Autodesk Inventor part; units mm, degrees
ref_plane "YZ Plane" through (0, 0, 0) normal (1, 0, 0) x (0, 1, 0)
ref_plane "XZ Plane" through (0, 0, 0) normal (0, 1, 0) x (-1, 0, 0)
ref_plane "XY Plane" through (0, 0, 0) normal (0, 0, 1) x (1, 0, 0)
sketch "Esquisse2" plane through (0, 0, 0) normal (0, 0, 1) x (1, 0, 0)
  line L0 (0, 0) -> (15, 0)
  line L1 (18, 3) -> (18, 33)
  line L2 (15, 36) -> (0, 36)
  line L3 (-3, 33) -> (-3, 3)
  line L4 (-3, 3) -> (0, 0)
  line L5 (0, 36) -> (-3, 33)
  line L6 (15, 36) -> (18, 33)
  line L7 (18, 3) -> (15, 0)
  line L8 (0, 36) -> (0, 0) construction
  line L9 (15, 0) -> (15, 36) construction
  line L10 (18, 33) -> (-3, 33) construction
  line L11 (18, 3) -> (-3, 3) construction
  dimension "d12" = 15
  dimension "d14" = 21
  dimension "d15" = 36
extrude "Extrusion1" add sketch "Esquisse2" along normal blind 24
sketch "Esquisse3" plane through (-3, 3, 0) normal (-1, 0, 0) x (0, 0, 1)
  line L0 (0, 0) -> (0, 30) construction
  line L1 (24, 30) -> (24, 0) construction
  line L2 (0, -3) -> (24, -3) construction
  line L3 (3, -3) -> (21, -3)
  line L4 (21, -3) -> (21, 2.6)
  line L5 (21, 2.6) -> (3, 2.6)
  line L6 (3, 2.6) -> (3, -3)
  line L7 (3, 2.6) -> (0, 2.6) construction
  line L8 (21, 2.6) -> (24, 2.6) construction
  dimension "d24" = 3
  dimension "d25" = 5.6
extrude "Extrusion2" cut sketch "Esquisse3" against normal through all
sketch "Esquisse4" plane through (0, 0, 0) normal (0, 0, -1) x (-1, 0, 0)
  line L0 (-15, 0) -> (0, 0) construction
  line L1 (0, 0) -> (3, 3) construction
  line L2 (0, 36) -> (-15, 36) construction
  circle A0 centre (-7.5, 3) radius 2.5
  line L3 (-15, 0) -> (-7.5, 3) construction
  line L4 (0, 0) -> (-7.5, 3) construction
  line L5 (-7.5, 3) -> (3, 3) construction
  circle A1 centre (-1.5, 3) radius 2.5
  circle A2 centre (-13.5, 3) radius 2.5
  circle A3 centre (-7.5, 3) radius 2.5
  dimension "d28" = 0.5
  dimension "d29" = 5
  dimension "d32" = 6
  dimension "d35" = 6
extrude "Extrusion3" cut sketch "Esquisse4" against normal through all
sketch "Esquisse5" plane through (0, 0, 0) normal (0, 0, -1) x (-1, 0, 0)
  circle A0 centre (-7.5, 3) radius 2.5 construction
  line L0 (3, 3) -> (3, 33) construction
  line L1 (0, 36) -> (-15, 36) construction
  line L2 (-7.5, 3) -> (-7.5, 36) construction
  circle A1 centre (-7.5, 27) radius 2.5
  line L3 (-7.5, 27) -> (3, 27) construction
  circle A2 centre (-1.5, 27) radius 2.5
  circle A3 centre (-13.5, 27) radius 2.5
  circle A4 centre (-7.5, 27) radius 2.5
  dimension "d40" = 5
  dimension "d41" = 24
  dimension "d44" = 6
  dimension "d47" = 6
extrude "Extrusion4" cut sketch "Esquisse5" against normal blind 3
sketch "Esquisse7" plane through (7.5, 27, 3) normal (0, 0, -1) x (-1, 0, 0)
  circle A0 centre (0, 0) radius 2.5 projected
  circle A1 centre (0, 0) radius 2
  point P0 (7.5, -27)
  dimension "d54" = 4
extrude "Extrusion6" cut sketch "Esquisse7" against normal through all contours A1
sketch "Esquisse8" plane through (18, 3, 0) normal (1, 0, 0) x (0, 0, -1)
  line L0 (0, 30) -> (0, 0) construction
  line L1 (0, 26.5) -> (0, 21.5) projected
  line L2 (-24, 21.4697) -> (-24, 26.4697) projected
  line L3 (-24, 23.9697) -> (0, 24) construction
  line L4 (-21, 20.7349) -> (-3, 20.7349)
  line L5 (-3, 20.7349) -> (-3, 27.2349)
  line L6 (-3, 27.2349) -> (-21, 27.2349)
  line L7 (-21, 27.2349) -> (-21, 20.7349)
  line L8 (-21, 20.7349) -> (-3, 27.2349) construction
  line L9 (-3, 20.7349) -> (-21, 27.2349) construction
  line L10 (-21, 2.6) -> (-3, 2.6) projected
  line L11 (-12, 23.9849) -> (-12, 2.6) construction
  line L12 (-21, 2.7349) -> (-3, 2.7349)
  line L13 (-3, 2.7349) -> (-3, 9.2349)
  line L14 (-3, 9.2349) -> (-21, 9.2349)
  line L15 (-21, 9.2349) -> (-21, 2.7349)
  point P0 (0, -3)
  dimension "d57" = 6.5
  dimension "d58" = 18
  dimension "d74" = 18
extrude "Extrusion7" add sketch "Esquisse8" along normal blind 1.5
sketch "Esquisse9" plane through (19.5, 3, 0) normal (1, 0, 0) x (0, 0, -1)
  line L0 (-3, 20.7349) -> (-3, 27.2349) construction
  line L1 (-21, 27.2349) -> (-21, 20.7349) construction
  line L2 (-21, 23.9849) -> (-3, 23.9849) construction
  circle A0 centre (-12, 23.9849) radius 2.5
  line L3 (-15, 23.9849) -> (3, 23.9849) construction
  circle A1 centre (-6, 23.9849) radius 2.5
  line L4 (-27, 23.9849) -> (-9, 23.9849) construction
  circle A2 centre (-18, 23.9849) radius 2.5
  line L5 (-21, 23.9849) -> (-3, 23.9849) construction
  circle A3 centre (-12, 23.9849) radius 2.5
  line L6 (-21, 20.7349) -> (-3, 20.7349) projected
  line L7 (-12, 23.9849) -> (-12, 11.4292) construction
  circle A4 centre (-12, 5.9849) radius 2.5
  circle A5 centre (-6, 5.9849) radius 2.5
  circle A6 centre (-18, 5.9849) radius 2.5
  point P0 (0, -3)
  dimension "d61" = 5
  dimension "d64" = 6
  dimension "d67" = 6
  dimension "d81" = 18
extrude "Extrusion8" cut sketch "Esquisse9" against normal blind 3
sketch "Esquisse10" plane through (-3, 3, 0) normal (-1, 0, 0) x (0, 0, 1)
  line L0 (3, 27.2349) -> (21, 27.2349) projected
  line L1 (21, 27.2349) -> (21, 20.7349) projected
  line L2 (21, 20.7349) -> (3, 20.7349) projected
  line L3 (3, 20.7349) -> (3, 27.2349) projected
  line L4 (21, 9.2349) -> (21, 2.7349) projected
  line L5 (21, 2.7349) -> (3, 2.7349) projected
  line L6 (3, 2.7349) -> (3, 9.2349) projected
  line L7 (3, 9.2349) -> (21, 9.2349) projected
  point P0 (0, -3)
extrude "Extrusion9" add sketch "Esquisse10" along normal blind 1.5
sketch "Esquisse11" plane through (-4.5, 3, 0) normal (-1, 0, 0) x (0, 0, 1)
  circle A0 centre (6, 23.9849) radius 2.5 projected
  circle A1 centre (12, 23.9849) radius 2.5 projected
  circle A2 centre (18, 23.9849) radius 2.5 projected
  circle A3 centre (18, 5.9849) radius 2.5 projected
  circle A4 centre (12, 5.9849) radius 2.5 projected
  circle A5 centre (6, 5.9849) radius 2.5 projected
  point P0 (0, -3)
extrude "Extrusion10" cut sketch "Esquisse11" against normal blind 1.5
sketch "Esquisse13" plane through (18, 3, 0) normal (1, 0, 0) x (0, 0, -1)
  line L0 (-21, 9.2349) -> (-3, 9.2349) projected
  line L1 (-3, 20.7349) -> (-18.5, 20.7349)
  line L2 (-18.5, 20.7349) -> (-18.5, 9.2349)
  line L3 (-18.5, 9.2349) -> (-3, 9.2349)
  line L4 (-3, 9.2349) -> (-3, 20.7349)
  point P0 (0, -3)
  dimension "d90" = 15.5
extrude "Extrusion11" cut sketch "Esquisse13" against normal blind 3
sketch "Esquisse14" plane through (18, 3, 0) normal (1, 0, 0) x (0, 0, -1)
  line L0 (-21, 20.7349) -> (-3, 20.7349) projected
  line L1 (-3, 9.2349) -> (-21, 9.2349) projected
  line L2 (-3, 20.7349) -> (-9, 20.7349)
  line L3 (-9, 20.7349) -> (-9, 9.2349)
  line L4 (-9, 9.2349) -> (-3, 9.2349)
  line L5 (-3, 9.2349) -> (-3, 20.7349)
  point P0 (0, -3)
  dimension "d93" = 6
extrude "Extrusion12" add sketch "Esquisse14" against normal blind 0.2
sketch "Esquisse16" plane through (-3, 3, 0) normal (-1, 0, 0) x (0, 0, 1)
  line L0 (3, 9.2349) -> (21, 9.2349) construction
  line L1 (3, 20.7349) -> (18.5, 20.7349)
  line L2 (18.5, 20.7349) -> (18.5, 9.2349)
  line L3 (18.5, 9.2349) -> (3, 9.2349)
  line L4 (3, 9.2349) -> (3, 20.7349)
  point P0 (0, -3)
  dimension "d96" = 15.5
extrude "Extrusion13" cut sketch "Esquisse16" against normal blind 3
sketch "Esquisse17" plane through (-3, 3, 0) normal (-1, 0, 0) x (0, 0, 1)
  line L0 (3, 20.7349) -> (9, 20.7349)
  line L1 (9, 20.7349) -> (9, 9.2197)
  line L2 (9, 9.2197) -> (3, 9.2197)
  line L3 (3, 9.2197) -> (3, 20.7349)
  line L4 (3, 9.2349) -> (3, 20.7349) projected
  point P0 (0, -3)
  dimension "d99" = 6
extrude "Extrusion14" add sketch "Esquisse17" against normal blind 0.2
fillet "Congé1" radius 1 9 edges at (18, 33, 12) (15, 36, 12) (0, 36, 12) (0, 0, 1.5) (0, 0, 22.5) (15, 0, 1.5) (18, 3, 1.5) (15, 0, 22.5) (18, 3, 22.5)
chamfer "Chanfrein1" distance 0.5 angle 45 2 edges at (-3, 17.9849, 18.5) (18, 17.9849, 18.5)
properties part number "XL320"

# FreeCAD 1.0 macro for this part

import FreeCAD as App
import Part
import Sketcher


def edges_at(feature, points):
    """Names of the edges that pass closest to the given points."""
    edges = feature.Shape.Edges
    near = lambda p: min(range(len(edges)), key=lambda i: edges[i].distToShape(Part.Vertex(*p))[0])
    return sorted({f"Edge{near(p) + 1}" for p in points})


def add_polygon(sketch, points):
    """Adds a closed chain of lines whose ends are joined by coincident constraints."""
    first, n = sketch.GeometryCount, len(points)
    for a, b in zip(points, points[1:] + points[:1]):
        sketch.addGeometry(Part.LineSegment(App.Vector(*a, 0), App.Vector(*b, 0)), False)
    for i in range(n):
        sketch.addConstraint(Sketcher.Constraint("Coincident", first + i, 2, first + (i + 1) % n, 1))

doc = App.newDocument("Part")
body = doc.addObject("PartDesign::Body", "Body")

# Sketch on XY plane
sketch1 = body.newObject("Sketcher::SketchObject", "Sketch")
sketch1.AttachmentSupport = (doc.getObject("XY_Plane"), [""])
sketch1.MapMode = "FlatFace"
add_polygon(sketch1, [(-3, 3), (0, 0), (15, 0), (18, 3), (18, 33), (15, 36), (0, 36), (-3, 33)])  # lines 0-7
sketch1.addConstraint(Sketcher.Constraint("Horizontal", 1))
sketch1.addConstraint(Sketcher.Constraint("Vertical", 3))
sketch1.addConstraint(Sketcher.Constraint("Horizontal", 5))
sketch1.addConstraint(Sketcher.Constraint("Vertical", 7))
sketch1.addConstraint(Sketcher.Constraint("Coincident", 0, 2, -1, 1))
sketch1.addConstraint(Sketcher.Constraint("PointOnObject", 5, 2, -2))
sketch1.addConstraint(Sketcher.Constraint("Perpendicular", 0, 2))
sketch1.addConstraint(Sketcher.Constraint("Perpendicular", 2, 4))
sketch1.addConstraint(Sketcher.Constraint("Perpendicular", 4, 6))
sketch1.addConstraint(Sketcher.Constraint("Horizontal", 3, 2, 6, 2))
sketch1.addConstraint(Sketcher.Constraint("Horizontal", 2, 2, 7, 2))
sketch1.addConstraint(Sketcher.Constraint("Vertical", 1, 2, 4, 2))
sketch1.addConstraint(Sketcher.Constraint("DistanceX", 1, 1, 1, 2, 15.0))
sketch1.addConstraint(Sketcher.Constraint("DistanceY", -1, 1, 4, 2, 36.0))
sketch1.addConstraint(Sketcher.Constraint("DistanceX", 6, 2, 3, 2, 21.0))
pad1 = body.newObject("PartDesign::Pad", "Pad")
pad1.Profile = sketch1
pad1.Length = 24

# Sketch on YZ plane
sketch2 = body.newObject("Sketcher::SketchObject", "Sketch001")
sketch2.AttachmentSupport = (doc.getObject("YZ_Plane"), [""])
sketch2.MapMode = "FlatFace"
sketch2.AttachmentOffset = App.Placement(App.Vector(0, 0, -3), App.Rotation())
add_polygon(sketch2, [(6, 3), (0, 3), (0, 21), (6, 21)])  # lines 0-3
sketch2.addConstraint(Sketcher.Constraint("Horizontal", 0))
sketch2.addConstraint(Sketcher.Constraint("Vertical", 1))
sketch2.addConstraint(Sketcher.Constraint("Horizontal", 2))
sketch2.addConstraint(Sketcher.Constraint("Vertical", 3))
sketch2.addConstraint(Sketcher.Constraint("PointOnObject", 0, 2, -2))
sketch2.addConstraint(Sketcher.Constraint("DistanceX", 0, 2, 0, 1, 5.6))
sketch2.addConstraint(Sketcher.Constraint("DistanceY", -1, 1, 0, 2, 3.0))
sketch2.addConstraint(Sketcher.Constraint("DistanceY", 1, 1, 1, 2, 18.0))
pocket1 = body.newObject("PartDesign::Pocket", "Pocket")
pocket1.Profile = sketch2
pocket1.Type = "ThroughAll"
pocket1.Reversed = True

# Sketch on XY plane
sketch3 = body.newObject("Sketcher::SketchObject", "Sketch002")
sketch3.AttachmentSupport = (doc.getObject("XY_Plane"), [""])
sketch3.MapMode = "FlatFace"
sketch3.addGeometry(Part.Circle(App.Vector(7.5, 3, 0), App.Vector(0, 0, 1), 2.5), False)
sketch3.addGeometry(Part.Circle(App.Vector(1.5, 3, 0), App.Vector(0, 0, 1), 2.5), False)
sketch3.addGeometry(Part.Circle(App.Vector(13.5, 3, 0), App.Vector(0, 0, 1), 2.5), False)
sketch3.addConstraint(Sketcher.Constraint("Equal", 0, 1))
sketch3.addConstraint(Sketcher.Constraint("Equal", 1, 2))
sketch3.addConstraint(Sketcher.Constraint("Horizontal", 0, 3, 1, 3))
sketch3.addConstraint(Sketcher.Constraint("Horizontal", 1, 3, 2, 3))
sketch3.addConstraint(Sketcher.Constraint("Diameter", 0, 5.0))
sketch3.addConstraint(Sketcher.Constraint("DistanceX", 1, 3, 0, 3, 6.0))
sketch3.addConstraint(Sketcher.Constraint("DistanceX", 0, 3, 2, 3, 6.0))
sketch3.addConstraint(Sketcher.Constraint("DistanceY", -1, 1, 0, 3, 3.0))
sketch3.addConstraint(Sketcher.Constraint("DistanceX", -1, 1, 0, 3, 7.5))
pocket2 = body.newObject("PartDesign::Pocket", "Pocket001")
pocket2.Profile = sketch3
pocket2.Type = "ThroughAll"
pocket2.Reversed = True

# Sketch on XY plane
sketch4 = body.newObject("Sketcher::SketchObject", "Sketch003")
sketch4.AttachmentSupport = (doc.getObject("XY_Plane"), [""])
sketch4.MapMode = "FlatFace"
sketch4.addGeometry(Part.Circle(App.Vector(7.5, 27, 0), App.Vector(0, 0, 1), 2.5), False)
sketch4.addGeometry(Part.Circle(App.Vector(1.5, 27, 0), App.Vector(0, 0, 1), 2.5), False)
sketch4.addGeometry(Part.Circle(App.Vector(13.5, 27, 0), App.Vector(0, 0, 1), 2.5), False)
sketch4.addConstraint(Sketcher.Constraint("Equal", 0, 1))
sketch4.addConstraint(Sketcher.Constraint("Equal", 1, 2))
sketch4.addConstraint(Sketcher.Constraint("Horizontal", 0, 3, 1, 3))
sketch4.addConstraint(Sketcher.Constraint("Horizontal", 1, 3, 2, 3))
sketch4.addConstraint(Sketcher.Constraint("Diameter", 0, 5.0))
sketch4.addConstraint(Sketcher.Constraint("DistanceX", 1, 3, 0, 3, 6.0))
sketch4.addConstraint(Sketcher.Constraint("DistanceX", 0, 3, 2, 3, 6.0))
sketch4.addConstraint(Sketcher.Constraint("DistanceY", -1, 1, 0, 3, 27.0))
sketch4.addConstraint(Sketcher.Constraint("DistanceX", -1, 1, 0, 3, 7.5))
pocket3 = body.newObject("PartDesign::Pocket", "Pocket002")
pocket3.Profile = sketch4
pocket3.Length = 3
pocket3.Reversed = True

# Sketch on XY plane
sketch5 = body.newObject("Sketcher::SketchObject", "Sketch004")
sketch5.AttachmentSupport = (doc.getObject("XY_Plane"), [""])
sketch5.MapMode = "FlatFace"
sketch5.AttachmentOffset = App.Placement(App.Vector(0, 0, 3), App.Rotation())
sketch5.addGeometry(Part.Circle(App.Vector(7.5, 27, 0), App.Vector(0, 0, 1), 2), False)
sketch5.addConstraint(Sketcher.Constraint("Diameter", 0, 4.0))
sketch5.addConstraint(Sketcher.Constraint("DistanceY", -1, 1, 0, 3, 27.0))
sketch5.addConstraint(Sketcher.Constraint("DistanceX", -1, 1, 0, 3, 7.5))
pocket4 = body.newObject("PartDesign::Pocket", "Pocket003")
pocket4.Profile = sketch5
pocket4.Type = "ThroughAll"
pocket4.Reversed = True

# Sketch on YZ plane
sketch6 = body.newObject("Sketcher::SketchObject", "Sketch005")
sketch6.AttachmentSupport = (doc.getObject("YZ_Plane"), [""])
sketch6.MapMode = "FlatFace"
sketch6.AttachmentOffset = App.Placement(App.Vector(0, 0, 18), App.Rotation())
add_polygon(sketch6, [(30, 21), (24, 21), (24, 3), (30, 3)])  # lines 0-3
add_polygon(sketch6, [(12, 21), (6, 21), (6, 3), (12, 3)])  # lines 4-7
sketch6.addConstraint(Sketcher.Constraint("Horizontal", 0))
sketch6.addConstraint(Sketcher.Constraint("Vertical", 1))
sketch6.addConstraint(Sketcher.Constraint("Horizontal", 2))
sketch6.addConstraint(Sketcher.Constraint("Vertical", 3))
sketch6.addConstraint(Sketcher.Constraint("Horizontal", 4))
sketch6.addConstraint(Sketcher.Constraint("Vertical", 5))
sketch6.addConstraint(Sketcher.Constraint("Horizontal", 6))
sketch6.addConstraint(Sketcher.Constraint("Vertical", 7))
sketch6.addConstraint(Sketcher.Constraint("Horizontal", 3, 2, 4, 2))
sketch6.addConstraint(Sketcher.Constraint("Horizontal", 2, 2, 5, 2))
sketch6.addConstraint(Sketcher.Constraint("Equal", 2, 4))
sketch6.addConstraint(Sketcher.Constraint("DistanceY", 1, 2, 1, 1, 18.0))
sketch6.addConstraint(Sketcher.Constraint("DistanceX", 0, 2, 0, 1, 6.5))
sketch6.addConstraint(Sketcher.Constraint("DistanceX", 4, 2, 0, 2, 18.0))
sketch6.addConstraint(Sketcher.Constraint("DistanceY", -1, 1, 0, 2, 21.0))
sketch6.addConstraint(Sketcher.Constraint("DistanceX", -1, 1, 0, 2, 23.735))
pad2 = body.newObject("PartDesign::Pad", "Pad001")
pad2.Profile = sketch6
pad2.Length = 1.5

# Sketch on YZ plane
sketch7 = body.newObject("Sketcher::SketchObject", "Sketch006")
sketch7.AttachmentSupport = (doc.getObject("YZ_Plane"), [""])
sketch7.MapMode = "FlatFace"
sketch7.AttachmentOffset = App.Placement(App.Vector(0, 0, 19.5), App.Rotation())
sketch7.addGeometry(Part.Circle(App.Vector(27, 12, 0), App.Vector(0, 0, 1), 2.5), False)
sketch7.addGeometry(Part.Circle(App.Vector(27, 6, 0), App.Vector(0, 0, 1), 2.5), False)
sketch7.addGeometry(Part.Circle(App.Vector(27, 18, 0), App.Vector(0, 0, 1), 2.5), False)
sketch7.addGeometry(Part.Circle(App.Vector(9, 12, 0), App.Vector(0, 0, 1), 2.5), False)
sketch7.addGeometry(Part.Circle(App.Vector(9, 6, 0), App.Vector(0, 0, 1), 2.5), False)
sketch7.addGeometry(Part.Circle(App.Vector(9, 18, 0), App.Vector(0, 0, 1), 2.5), False)
sketch7.addConstraint(Sketcher.Constraint("Equal", 0, 1))
sketch7.addConstraint(Sketcher.Constraint("Equal", 1, 2))
sketch7.addConstraint(Sketcher.Constraint("Equal", 2, 3))
sketch7.addConstraint(Sketcher.Constraint("Equal", 3, 4))
sketch7.addConstraint(Sketcher.Constraint("Equal", 4, 5))
sketch7.addConstraint(Sketcher.Constraint("Horizontal", 0, 3, 3, 3))
sketch7.addConstraint(Sketcher.Constraint("Horizontal", 1, 3, 4, 3))
sketch7.addConstraint(Sketcher.Constraint("Horizontal", 2, 3, 5, 3))
sketch7.addConstraint(Sketcher.Constraint("Vertical", 0, 3, 1, 3))
sketch7.addConstraint(Sketcher.Constraint("Vertical", 1, 3, 2, 3))
sketch7.addConstraint(Sketcher.Constraint("Vertical", 3, 3, 4, 3))
sketch7.addConstraint(Sketcher.Constraint("Vertical", 4, 3, 5, 3))
sketch7.addConstraint(Sketcher.Constraint("Diameter", 0, 5.0))
sketch7.addConstraint(Sketcher.Constraint("DistanceY", -1, 1, 1, 3, 6.0))
sketch7.addConstraint(Sketcher.Constraint("DistanceY", -1, 1, 2, 3, 18.0))
sketch7.addConstraint(Sketcher.Constraint("DistanceY", 1, 3, 0, 3, 6.0))
sketch7.addConstraint(Sketcher.Constraint("DistanceX", 3, 3, 0, 3, 18.0))
sketch7.addConstraint(Sketcher.Constraint("DistanceX", -1, 1, 0, 3, 26.985))
pocket5 = body.newObject("PartDesign::Pocket", "Pocket004")
pocket5.Profile = sketch7
pocket5.Length = 3

# Sketch on YZ plane
sketch8 = body.newObject("Sketcher::SketchObject", "Sketch007")
sketch8.AttachmentSupport = (doc.getObject("YZ_Plane"), [""])
sketch8.MapMode = "FlatFace"
sketch8.AttachmentOffset = App.Placement(App.Vector(0, 0, -3), App.Rotation())
add_polygon(sketch8, [(30, 21), (30, 3), (24, 3), (24, 21)])  # lines 0-3
add_polygon(sketch8, [(6, 21), (12, 21), (12, 3), (6, 3)])  # lines 4-7
sketch8.addConstraint(Sketcher.Constraint("Vertical", 0))
sketch8.addConstraint(Sketcher.Constraint("Horizontal", 1))
sketch8.addConstraint(Sketcher.Constraint("Vertical", 2))
sketch8.addConstraint(Sketcher.Constraint("Horizontal", 3))
sketch8.addConstraint(Sketcher.Constraint("Horizontal", 4))
sketch8.addConstraint(Sketcher.Constraint("Vertical", 5))
sketch8.addConstraint(Sketcher.Constraint("Horizontal", 6))
sketch8.addConstraint(Sketcher.Constraint("Vertical", 7))
sketch8.addConstraint(Sketcher.Constraint("Horizontal", 3, 2, 4, 2))
sketch8.addConstraint(Sketcher.Constraint("Horizontal", 1, 2, 5, 2))
sketch8.addConstraint(Sketcher.Constraint("Equal", 3, 4))
sketch8.addConstraint(Sketcher.Constraint("DistanceY", 0, 2, 0, 1, 18.0))
sketch8.addConstraint(Sketcher.Constraint("DistanceX", 1, 2, 1, 1, 6.5))
sketch8.addConstraint(Sketcher.Constraint("DistanceY", -1, 1, 0, 2, 3.0))
sketch8.addConstraint(Sketcher.Constraint("DistanceX", 4, 2, 3, 2, 18.0))
sketch8.addConstraint(Sketcher.Constraint("DistanceX", -1, 1, 0, 2, 30.235))
pad3 = body.newObject("PartDesign::Pad", "Pad002")
pad3.Profile = sketch8
pad3.Length = 1.5
pad3.Reversed = True

# Sketch on YZ plane
sketch9 = body.newObject("Sketcher::SketchObject", "Sketch008")
sketch9.AttachmentSupport = (doc.getObject("YZ_Plane"), [""])
sketch9.MapMode = "FlatFace"
sketch9.AttachmentOffset = App.Placement(App.Vector(0, 0, -4.5), App.Rotation())
sketch9.addGeometry(Part.Circle(App.Vector(27, 6, 0), App.Vector(0, 0, 1), 2.5), False)
sketch9.addGeometry(Part.Circle(App.Vector(27, 12, 0), App.Vector(0, 0, 1), 2.5), False)
sketch9.addGeometry(Part.Circle(App.Vector(27, 18, 0), App.Vector(0, 0, 1), 2.5), False)
sketch9.addGeometry(Part.Circle(App.Vector(9, 18, 0), App.Vector(0, 0, 1), 2.5), False)
sketch9.addGeometry(Part.Circle(App.Vector(9, 12, 0), App.Vector(0, 0, 1), 2.5), False)
sketch9.addGeometry(Part.Circle(App.Vector(9, 6, 0), App.Vector(0, 0, 1), 2.5), False)
sketch9.addConstraint(Sketcher.Constraint("Equal", 0, 1))
sketch9.addConstraint(Sketcher.Constraint("Equal", 1, 2))
sketch9.addConstraint(Sketcher.Constraint("Equal", 2, 3))
sketch9.addConstraint(Sketcher.Constraint("Equal", 3, 4))
sketch9.addConstraint(Sketcher.Constraint("Equal", 4, 5))
sketch9.addConstraint(Sketcher.Constraint("Horizontal", 2, 3, 3, 3))
sketch9.addConstraint(Sketcher.Constraint("Horizontal", 1, 3, 4, 3))
sketch9.addConstraint(Sketcher.Constraint("Horizontal", 0, 3, 5, 3))
sketch9.addConstraint(Sketcher.Constraint("Vertical", 0, 3, 1, 3))
sketch9.addConstraint(Sketcher.Constraint("Vertical", 1, 3, 2, 3))
sketch9.addConstraint(Sketcher.Constraint("Vertical", 3, 3, 4, 3))
sketch9.addConstraint(Sketcher.Constraint("Vertical", 4, 3, 5, 3))
sketch9.addConstraint(Sketcher.Constraint("Diameter", 0, 5.0))
sketch9.addConstraint(Sketcher.Constraint("DistanceY", -1, 1, 0, 3, 6.0))
sketch9.addConstraint(Sketcher.Constraint("DistanceY", -1, 1, 1, 3, 12.0))
sketch9.addConstraint(Sketcher.Constraint("DistanceY", -1, 1, 2, 3, 18.0))
sketch9.addConstraint(Sketcher.Constraint("DistanceX", 3, 3, 2, 3, 18.0))
sketch9.addConstraint(Sketcher.Constraint("DistanceX", -1, 1, 0, 3, 26.985))
pocket6 = body.newObject("PartDesign::Pocket", "Pocket005")
pocket6.Profile = sketch9
pocket6.Length = 1.5
pocket6.Reversed = True

# Sketch on YZ plane
sketch10 = body.newObject("Sketcher::SketchObject", "Sketch009")
sketch10.AttachmentSupport = (doc.getObject("YZ_Plane"), [""])
sketch10.MapMode = "FlatFace"
sketch10.AttachmentOffset = App.Placement(App.Vector(0, 0, 18), App.Rotation())
add_polygon(sketch10, [(24, 18), (12, 18), (12, 3), (24, 3)])  # lines 0-3
sketch10.addConstraint(Sketcher.Constraint("Horizontal", 0))
sketch10.addConstraint(Sketcher.Constraint("Vertical", 1))
sketch10.addConstraint(Sketcher.Constraint("Horizontal", 2))
sketch10.addConstraint(Sketcher.Constraint("Vertical", 3))
sketch10.addConstraint(Sketcher.Constraint("DistanceY", 1, 2, 1, 1, 15.5))
sketch10.addConstraint(Sketcher.Constraint("DistanceX", 0, 2, 0, 1, 11.5))
sketch10.addConstraint(Sketcher.Constraint("DistanceY", -1, 1, 1, 2, 3.0))
sketch10.addConstraint(Sketcher.Constraint("DistanceX", -1, 1, 0, 2, 12.235))
pocket7 = body.newObject("PartDesign::Pocket", "Pocket006")
pocket7.Profile = sketch10
pocket7.Length = 3

# Sketch on YZ plane
sketch11 = body.newObject("Sketcher::SketchObject", "Sketch010")
sketch11.AttachmentSupport = (doc.getObject("YZ_Plane"), [""])
sketch11.MapMode = "FlatFace"
sketch11.AttachmentOffset = App.Placement(App.Vector(0, 0, 18), App.Rotation())
add_polygon(sketch11, [(24, 3), (24, 9), (12, 9), (12, 3)])  # lines 0-3
sketch11.addConstraint(Sketcher.Constraint("Vertical", 0))
sketch11.addConstraint(Sketcher.Constraint("Horizontal", 1))
sketch11.addConstraint(Sketcher.Constraint("Vertical", 2))
sketch11.addConstraint(Sketcher.Constraint("Horizontal", 3))
sketch11.addConstraint(Sketcher.Constraint("DistanceY", 0, 1, 0, 2, 6.0))
sketch11.addConstraint(Sketcher.Constraint("DistanceX", 1, 2, 1, 1, 11.5))
sketch11.addConstraint(Sketcher.Constraint("DistanceY", -1, 1, 0, 2, 9.0))
sketch11.addConstraint(Sketcher.Constraint("DistanceX", -1, 1, 0, 2, 23.735))
pad4 = body.newObject("PartDesign::Pad", "Pad003")
pad4.Profile = sketch11
pad4.Length = 0.2
pad4.Reversed = True

# Sketch on YZ plane
sketch12 = body.newObject("Sketcher::SketchObject", "Sketch011")
sketch12.AttachmentSupport = (doc.getObject("YZ_Plane"), [""])
sketch12.MapMode = "FlatFace"
sketch12.AttachmentOffset = App.Placement(App.Vector(0, 0, -3), App.Rotation())
add_polygon(sketch12, [(24, 18), (24, 3), (12, 3), (12, 18)])  # lines 0-3
sketch12.addConstraint(Sketcher.Constraint("Vertical", 0))
sketch12.addConstraint(Sketcher.Constraint("Horizontal", 1))
sketch12.addConstraint(Sketcher.Constraint("Vertical", 2))
sketch12.addConstraint(Sketcher.Constraint("Horizontal", 3))
sketch12.addConstraint(Sketcher.Constraint("DistanceY", 0, 2, 0, 1, 15.5))
sketch12.addConstraint(Sketcher.Constraint("DistanceX", 1, 2, 1, 1, 11.5))
sketch12.addConstraint(Sketcher.Constraint("DistanceY", -1, 1, 0, 2, 3.0))
sketch12.addConstraint(Sketcher.Constraint("DistanceX", -1, 1, 0, 2, 23.735))
pocket8 = body.newObject("PartDesign::Pocket", "Pocket007")
pocket8.Profile = sketch12
pocket8.Length = 3
pocket8.Reversed = True

# Sketch on YZ plane
sketch13 = body.newObject("Sketcher::SketchObject", "Sketch012")
sketch13.AttachmentSupport = (doc.getObject("YZ_Plane"), [""])
sketch13.MapMode = "FlatFace"
sketch13.AttachmentOffset = App.Placement(App.Vector(0, 0, -3), App.Rotation())
add_polygon(sketch13, [(24, 9), (24, 3), (12, 3), (12, 9)])  # lines 0-3
sketch13.addConstraint(Sketcher.Constraint("Vertical", 0))
sketch13.addConstraint(Sketcher.Constraint("Horizontal", 1))
sketch13.addConstraint(Sketcher.Constraint("Vertical", 2))
sketch13.addConstraint(Sketcher.Constraint("Horizontal", 3))
sketch13.addConstraint(Sketcher.Constraint("DistanceY", 0, 2, 0, 1, 6.0))
sketch13.addConstraint(Sketcher.Constraint("DistanceY", -1, 1, 0, 2, 3.0))
sketch13.addConstraint(Sketcher.Constraint("DistanceX", 1, 2, 1, 1, 11.5152))
sketch13.addConstraint(Sketcher.Constraint("DistanceX", -1, 1, 0, 2, 23.735))
pad5 = body.newObject("PartDesign::Pad", "Pad004")
pad5.Profile = sketch13
pad5.Length = 0.2
doc.recompute()

fillet = body.newObject("PartDesign::Fillet", "Fillet")
fillet.Base = (pad5, edges_at(pad5, [
    (18, 33, 12),
    (15, 36, 12),
    (0, 36, 12),
    (0, 0, 1.5),
    (0, 0, 22.5),
    (15, 0, 1.5),
    (18, 3, 1.5),
    (15, 0, 22.5),
    (18, 3, 22.5),
]))
fillet.Radius = 1
doc.recompute()

chamfer = body.newObject("PartDesign::Chamfer", "Chamfer")
chamfer.Base = (fillet, edges_at(fillet, [(-3, 17.985, 18.5), (18, 17.985, 18.5)]))
chamfer.Size = 0.5

doc.recompute()
